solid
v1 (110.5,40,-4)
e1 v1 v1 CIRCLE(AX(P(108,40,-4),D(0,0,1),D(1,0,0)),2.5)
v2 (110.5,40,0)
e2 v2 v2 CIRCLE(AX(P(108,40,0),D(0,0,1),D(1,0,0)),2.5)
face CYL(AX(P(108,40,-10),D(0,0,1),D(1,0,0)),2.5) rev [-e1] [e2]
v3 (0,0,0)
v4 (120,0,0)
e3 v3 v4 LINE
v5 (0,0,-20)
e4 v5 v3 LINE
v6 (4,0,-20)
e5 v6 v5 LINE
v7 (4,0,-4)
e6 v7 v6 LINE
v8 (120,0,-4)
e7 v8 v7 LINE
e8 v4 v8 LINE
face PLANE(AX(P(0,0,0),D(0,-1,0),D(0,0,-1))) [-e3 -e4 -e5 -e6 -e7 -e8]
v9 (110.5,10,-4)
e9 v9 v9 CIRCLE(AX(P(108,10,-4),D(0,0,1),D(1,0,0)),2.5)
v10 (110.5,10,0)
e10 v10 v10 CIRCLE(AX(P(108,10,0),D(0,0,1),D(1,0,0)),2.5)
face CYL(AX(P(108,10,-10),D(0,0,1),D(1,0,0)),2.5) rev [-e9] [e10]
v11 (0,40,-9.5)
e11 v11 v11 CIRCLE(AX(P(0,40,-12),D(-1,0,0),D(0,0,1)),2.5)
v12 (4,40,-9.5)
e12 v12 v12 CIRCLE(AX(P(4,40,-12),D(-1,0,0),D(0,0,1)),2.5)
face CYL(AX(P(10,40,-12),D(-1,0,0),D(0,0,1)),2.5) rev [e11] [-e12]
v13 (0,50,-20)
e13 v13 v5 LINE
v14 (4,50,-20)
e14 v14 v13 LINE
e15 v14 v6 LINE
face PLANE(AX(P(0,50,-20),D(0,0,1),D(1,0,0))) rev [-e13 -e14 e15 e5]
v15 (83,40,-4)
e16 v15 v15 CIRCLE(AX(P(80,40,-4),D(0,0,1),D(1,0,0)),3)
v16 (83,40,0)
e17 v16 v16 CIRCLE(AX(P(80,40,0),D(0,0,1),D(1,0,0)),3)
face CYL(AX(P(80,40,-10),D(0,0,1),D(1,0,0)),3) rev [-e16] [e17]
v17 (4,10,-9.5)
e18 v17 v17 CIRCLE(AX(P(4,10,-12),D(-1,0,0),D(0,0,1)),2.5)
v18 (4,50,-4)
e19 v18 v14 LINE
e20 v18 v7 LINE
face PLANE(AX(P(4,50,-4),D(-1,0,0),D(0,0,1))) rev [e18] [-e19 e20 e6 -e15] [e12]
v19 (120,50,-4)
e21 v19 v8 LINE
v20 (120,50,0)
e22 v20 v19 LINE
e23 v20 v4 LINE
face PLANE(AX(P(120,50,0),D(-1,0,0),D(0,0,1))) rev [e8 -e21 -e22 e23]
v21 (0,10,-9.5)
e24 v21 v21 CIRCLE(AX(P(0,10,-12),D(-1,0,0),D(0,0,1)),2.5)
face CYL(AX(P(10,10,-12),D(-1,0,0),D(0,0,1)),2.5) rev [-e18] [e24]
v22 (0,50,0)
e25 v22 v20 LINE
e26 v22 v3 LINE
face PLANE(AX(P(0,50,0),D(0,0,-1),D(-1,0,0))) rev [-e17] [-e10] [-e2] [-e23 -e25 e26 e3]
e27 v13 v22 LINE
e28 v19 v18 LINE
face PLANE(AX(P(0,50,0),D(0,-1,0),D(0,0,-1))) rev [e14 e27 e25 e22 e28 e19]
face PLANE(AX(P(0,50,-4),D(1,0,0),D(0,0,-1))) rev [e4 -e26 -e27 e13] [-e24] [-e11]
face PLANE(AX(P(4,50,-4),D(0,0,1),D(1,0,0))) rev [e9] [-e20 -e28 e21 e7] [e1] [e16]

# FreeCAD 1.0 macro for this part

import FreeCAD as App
import Part
import Sketcher

V = App.Vector

doc = App.newDocument("Part")
body = doc.addObject("PartDesign::Body", "Body")

sketch1 = body.newObject("Sketcher::SketchObject", "Sketch")
sketch1.AttachmentSupport = (doc.getObject("XZ_Plane"), [""])
sketch1.MapMode = "FlatFace"
sketch1.addGeometry([
    Part.LineSegment(V(0, 0, 0), V(120, 0, 0)),
    Part.LineSegment(V(120, 0, 0), V(120, -4, 0)),
    Part.LineSegment(V(120, -4, 0), V(4, -4, 0)),
    Part.LineSegment(V(4, -4, 0), V(4, -20, 0)),
    Part.LineSegment(V(4, -20, 0), V(0, -20, 0)),
    Part.LineSegment(V(0, -20, 0), V(0, 0, 0)),
], False)
sketch1.addConstraint([
    Sketcher.Constraint("Coincident", 0, 2, 1, 1),
    Sketcher.Constraint("Coincident", 1, 2, 2, 1),
    Sketcher.Constraint("Coincident", 2, 2, 3, 1),
    Sketcher.Constraint("Coincident", 3, 2, 4, 1),
    Sketcher.Constraint("Coincident", 4, 2, 5, 1),
    Sketcher.Constraint("Coincident", 5, 2, 0, 1),
    Sketcher.Constraint("Horizontal", 0),
    Sketcher.Constraint("Vertical", 1),
    Sketcher.Constraint("Horizontal", 2),
    Sketcher.Constraint("Vertical", 3),
    Sketcher.Constraint("Horizontal", 4),
    Sketcher.Constraint("Vertical", 5),
    Sketcher.Constraint("Coincident", 5, 2, -1, 1),
    Sketcher.Constraint("Equal", 4, 1),
    Sketcher.Constraint("DistanceX", 0, 1, 0, 2, 120.0),
    Sketcher.Constraint("DistanceX", 2, 2, 2, 1, 116.0),
    Sketcher.Constraint("DistanceY", 3, 2, 3, 1, 16.0),
])
pad1 = body.newObject("PartDesign::Pad", "Pad")
pad1.Profile = sketch1
pad1.Length = 50
pad1.Reversed = True

sketch2 = body.newObject("Sketcher::SketchObject", "Sketch001")
sketch2.AttachmentSupport = (doc.getObject("YZ_Plane"), [""])
sketch2.MapMode = "FlatFace"
sketch2.addGeometry([
    Part.Circle(V(40, -12, 0), V(0, 0, 1), 2.5),
    Part.Circle(V(10, -12, 0), V(0, 0, 1), 2.5),
], False)
sketch2.addConstraint([
    Sketcher.Constraint("Equal", 0, 1),
    Sketcher.Constraint("Horizontal", 0, 3, 1, 3),
    Sketcher.Constraint("Diameter", 0, 5.0),
    Sketcher.Constraint("DistanceX", -1, 1, 0, 3, 40.0),
    Sketcher.Constraint("DistanceY", 0, 3, -1, 1, 12.0),
    Sketcher.Constraint("DistanceX", -1, 1, 1, 3, 10.0),
])
pocket1 = body.newObject("PartDesign::Pocket", "Pocket")
pocket1.Profile = sketch2
pocket1.Length = 10
pocket1.Reversed = True

sketch3 = body.newObject("Sketcher::SketchObject", "Sketch002")
sketch3.AttachmentSupport = (doc.getObject("XY_Plane"), [""])
sketch3.MapMode = "FlatFace"
sketch3.addGeometry([
    Part.Circle(V(108, 40, 0), V(0, 0, 1), 2.5),
    Part.Circle(V(108, 10, 0), V(0, 0, 1), 2.5),
    Part.Circle(V(80, 40, 0), V(0, 0, 1), 3),
], False)
sketch3.addConstraint([
    Sketcher.Constraint("Equal", 0, 1),
    Sketcher.Constraint("Horizontal", 0, 3, 2, 3),
    Sketcher.Constraint("Vertical", 0, 3, 1, 3),
    Sketcher.Constraint("Diameter", 0, 5.0),
    Sketcher.Constraint("Diameter", 2, 6.0),
    Sketcher.Constraint("DistanceX", -1, 1, 0, 3, 108.0),
    Sketcher.Constraint("DistanceY", -1, 1, 0, 3, 40.0),
    Sketcher.Constraint("DistanceY", -1, 1, 1, 3, 10.0),
    Sketcher.Constraint("DistanceX", -1, 1, 2, 3, 80.0),
])
pocket2 = body.newObject("PartDesign::Pocket", "Pocket001")
pocket2.Profile = sketch3
pocket2.Length = 10

doc.recompute()
